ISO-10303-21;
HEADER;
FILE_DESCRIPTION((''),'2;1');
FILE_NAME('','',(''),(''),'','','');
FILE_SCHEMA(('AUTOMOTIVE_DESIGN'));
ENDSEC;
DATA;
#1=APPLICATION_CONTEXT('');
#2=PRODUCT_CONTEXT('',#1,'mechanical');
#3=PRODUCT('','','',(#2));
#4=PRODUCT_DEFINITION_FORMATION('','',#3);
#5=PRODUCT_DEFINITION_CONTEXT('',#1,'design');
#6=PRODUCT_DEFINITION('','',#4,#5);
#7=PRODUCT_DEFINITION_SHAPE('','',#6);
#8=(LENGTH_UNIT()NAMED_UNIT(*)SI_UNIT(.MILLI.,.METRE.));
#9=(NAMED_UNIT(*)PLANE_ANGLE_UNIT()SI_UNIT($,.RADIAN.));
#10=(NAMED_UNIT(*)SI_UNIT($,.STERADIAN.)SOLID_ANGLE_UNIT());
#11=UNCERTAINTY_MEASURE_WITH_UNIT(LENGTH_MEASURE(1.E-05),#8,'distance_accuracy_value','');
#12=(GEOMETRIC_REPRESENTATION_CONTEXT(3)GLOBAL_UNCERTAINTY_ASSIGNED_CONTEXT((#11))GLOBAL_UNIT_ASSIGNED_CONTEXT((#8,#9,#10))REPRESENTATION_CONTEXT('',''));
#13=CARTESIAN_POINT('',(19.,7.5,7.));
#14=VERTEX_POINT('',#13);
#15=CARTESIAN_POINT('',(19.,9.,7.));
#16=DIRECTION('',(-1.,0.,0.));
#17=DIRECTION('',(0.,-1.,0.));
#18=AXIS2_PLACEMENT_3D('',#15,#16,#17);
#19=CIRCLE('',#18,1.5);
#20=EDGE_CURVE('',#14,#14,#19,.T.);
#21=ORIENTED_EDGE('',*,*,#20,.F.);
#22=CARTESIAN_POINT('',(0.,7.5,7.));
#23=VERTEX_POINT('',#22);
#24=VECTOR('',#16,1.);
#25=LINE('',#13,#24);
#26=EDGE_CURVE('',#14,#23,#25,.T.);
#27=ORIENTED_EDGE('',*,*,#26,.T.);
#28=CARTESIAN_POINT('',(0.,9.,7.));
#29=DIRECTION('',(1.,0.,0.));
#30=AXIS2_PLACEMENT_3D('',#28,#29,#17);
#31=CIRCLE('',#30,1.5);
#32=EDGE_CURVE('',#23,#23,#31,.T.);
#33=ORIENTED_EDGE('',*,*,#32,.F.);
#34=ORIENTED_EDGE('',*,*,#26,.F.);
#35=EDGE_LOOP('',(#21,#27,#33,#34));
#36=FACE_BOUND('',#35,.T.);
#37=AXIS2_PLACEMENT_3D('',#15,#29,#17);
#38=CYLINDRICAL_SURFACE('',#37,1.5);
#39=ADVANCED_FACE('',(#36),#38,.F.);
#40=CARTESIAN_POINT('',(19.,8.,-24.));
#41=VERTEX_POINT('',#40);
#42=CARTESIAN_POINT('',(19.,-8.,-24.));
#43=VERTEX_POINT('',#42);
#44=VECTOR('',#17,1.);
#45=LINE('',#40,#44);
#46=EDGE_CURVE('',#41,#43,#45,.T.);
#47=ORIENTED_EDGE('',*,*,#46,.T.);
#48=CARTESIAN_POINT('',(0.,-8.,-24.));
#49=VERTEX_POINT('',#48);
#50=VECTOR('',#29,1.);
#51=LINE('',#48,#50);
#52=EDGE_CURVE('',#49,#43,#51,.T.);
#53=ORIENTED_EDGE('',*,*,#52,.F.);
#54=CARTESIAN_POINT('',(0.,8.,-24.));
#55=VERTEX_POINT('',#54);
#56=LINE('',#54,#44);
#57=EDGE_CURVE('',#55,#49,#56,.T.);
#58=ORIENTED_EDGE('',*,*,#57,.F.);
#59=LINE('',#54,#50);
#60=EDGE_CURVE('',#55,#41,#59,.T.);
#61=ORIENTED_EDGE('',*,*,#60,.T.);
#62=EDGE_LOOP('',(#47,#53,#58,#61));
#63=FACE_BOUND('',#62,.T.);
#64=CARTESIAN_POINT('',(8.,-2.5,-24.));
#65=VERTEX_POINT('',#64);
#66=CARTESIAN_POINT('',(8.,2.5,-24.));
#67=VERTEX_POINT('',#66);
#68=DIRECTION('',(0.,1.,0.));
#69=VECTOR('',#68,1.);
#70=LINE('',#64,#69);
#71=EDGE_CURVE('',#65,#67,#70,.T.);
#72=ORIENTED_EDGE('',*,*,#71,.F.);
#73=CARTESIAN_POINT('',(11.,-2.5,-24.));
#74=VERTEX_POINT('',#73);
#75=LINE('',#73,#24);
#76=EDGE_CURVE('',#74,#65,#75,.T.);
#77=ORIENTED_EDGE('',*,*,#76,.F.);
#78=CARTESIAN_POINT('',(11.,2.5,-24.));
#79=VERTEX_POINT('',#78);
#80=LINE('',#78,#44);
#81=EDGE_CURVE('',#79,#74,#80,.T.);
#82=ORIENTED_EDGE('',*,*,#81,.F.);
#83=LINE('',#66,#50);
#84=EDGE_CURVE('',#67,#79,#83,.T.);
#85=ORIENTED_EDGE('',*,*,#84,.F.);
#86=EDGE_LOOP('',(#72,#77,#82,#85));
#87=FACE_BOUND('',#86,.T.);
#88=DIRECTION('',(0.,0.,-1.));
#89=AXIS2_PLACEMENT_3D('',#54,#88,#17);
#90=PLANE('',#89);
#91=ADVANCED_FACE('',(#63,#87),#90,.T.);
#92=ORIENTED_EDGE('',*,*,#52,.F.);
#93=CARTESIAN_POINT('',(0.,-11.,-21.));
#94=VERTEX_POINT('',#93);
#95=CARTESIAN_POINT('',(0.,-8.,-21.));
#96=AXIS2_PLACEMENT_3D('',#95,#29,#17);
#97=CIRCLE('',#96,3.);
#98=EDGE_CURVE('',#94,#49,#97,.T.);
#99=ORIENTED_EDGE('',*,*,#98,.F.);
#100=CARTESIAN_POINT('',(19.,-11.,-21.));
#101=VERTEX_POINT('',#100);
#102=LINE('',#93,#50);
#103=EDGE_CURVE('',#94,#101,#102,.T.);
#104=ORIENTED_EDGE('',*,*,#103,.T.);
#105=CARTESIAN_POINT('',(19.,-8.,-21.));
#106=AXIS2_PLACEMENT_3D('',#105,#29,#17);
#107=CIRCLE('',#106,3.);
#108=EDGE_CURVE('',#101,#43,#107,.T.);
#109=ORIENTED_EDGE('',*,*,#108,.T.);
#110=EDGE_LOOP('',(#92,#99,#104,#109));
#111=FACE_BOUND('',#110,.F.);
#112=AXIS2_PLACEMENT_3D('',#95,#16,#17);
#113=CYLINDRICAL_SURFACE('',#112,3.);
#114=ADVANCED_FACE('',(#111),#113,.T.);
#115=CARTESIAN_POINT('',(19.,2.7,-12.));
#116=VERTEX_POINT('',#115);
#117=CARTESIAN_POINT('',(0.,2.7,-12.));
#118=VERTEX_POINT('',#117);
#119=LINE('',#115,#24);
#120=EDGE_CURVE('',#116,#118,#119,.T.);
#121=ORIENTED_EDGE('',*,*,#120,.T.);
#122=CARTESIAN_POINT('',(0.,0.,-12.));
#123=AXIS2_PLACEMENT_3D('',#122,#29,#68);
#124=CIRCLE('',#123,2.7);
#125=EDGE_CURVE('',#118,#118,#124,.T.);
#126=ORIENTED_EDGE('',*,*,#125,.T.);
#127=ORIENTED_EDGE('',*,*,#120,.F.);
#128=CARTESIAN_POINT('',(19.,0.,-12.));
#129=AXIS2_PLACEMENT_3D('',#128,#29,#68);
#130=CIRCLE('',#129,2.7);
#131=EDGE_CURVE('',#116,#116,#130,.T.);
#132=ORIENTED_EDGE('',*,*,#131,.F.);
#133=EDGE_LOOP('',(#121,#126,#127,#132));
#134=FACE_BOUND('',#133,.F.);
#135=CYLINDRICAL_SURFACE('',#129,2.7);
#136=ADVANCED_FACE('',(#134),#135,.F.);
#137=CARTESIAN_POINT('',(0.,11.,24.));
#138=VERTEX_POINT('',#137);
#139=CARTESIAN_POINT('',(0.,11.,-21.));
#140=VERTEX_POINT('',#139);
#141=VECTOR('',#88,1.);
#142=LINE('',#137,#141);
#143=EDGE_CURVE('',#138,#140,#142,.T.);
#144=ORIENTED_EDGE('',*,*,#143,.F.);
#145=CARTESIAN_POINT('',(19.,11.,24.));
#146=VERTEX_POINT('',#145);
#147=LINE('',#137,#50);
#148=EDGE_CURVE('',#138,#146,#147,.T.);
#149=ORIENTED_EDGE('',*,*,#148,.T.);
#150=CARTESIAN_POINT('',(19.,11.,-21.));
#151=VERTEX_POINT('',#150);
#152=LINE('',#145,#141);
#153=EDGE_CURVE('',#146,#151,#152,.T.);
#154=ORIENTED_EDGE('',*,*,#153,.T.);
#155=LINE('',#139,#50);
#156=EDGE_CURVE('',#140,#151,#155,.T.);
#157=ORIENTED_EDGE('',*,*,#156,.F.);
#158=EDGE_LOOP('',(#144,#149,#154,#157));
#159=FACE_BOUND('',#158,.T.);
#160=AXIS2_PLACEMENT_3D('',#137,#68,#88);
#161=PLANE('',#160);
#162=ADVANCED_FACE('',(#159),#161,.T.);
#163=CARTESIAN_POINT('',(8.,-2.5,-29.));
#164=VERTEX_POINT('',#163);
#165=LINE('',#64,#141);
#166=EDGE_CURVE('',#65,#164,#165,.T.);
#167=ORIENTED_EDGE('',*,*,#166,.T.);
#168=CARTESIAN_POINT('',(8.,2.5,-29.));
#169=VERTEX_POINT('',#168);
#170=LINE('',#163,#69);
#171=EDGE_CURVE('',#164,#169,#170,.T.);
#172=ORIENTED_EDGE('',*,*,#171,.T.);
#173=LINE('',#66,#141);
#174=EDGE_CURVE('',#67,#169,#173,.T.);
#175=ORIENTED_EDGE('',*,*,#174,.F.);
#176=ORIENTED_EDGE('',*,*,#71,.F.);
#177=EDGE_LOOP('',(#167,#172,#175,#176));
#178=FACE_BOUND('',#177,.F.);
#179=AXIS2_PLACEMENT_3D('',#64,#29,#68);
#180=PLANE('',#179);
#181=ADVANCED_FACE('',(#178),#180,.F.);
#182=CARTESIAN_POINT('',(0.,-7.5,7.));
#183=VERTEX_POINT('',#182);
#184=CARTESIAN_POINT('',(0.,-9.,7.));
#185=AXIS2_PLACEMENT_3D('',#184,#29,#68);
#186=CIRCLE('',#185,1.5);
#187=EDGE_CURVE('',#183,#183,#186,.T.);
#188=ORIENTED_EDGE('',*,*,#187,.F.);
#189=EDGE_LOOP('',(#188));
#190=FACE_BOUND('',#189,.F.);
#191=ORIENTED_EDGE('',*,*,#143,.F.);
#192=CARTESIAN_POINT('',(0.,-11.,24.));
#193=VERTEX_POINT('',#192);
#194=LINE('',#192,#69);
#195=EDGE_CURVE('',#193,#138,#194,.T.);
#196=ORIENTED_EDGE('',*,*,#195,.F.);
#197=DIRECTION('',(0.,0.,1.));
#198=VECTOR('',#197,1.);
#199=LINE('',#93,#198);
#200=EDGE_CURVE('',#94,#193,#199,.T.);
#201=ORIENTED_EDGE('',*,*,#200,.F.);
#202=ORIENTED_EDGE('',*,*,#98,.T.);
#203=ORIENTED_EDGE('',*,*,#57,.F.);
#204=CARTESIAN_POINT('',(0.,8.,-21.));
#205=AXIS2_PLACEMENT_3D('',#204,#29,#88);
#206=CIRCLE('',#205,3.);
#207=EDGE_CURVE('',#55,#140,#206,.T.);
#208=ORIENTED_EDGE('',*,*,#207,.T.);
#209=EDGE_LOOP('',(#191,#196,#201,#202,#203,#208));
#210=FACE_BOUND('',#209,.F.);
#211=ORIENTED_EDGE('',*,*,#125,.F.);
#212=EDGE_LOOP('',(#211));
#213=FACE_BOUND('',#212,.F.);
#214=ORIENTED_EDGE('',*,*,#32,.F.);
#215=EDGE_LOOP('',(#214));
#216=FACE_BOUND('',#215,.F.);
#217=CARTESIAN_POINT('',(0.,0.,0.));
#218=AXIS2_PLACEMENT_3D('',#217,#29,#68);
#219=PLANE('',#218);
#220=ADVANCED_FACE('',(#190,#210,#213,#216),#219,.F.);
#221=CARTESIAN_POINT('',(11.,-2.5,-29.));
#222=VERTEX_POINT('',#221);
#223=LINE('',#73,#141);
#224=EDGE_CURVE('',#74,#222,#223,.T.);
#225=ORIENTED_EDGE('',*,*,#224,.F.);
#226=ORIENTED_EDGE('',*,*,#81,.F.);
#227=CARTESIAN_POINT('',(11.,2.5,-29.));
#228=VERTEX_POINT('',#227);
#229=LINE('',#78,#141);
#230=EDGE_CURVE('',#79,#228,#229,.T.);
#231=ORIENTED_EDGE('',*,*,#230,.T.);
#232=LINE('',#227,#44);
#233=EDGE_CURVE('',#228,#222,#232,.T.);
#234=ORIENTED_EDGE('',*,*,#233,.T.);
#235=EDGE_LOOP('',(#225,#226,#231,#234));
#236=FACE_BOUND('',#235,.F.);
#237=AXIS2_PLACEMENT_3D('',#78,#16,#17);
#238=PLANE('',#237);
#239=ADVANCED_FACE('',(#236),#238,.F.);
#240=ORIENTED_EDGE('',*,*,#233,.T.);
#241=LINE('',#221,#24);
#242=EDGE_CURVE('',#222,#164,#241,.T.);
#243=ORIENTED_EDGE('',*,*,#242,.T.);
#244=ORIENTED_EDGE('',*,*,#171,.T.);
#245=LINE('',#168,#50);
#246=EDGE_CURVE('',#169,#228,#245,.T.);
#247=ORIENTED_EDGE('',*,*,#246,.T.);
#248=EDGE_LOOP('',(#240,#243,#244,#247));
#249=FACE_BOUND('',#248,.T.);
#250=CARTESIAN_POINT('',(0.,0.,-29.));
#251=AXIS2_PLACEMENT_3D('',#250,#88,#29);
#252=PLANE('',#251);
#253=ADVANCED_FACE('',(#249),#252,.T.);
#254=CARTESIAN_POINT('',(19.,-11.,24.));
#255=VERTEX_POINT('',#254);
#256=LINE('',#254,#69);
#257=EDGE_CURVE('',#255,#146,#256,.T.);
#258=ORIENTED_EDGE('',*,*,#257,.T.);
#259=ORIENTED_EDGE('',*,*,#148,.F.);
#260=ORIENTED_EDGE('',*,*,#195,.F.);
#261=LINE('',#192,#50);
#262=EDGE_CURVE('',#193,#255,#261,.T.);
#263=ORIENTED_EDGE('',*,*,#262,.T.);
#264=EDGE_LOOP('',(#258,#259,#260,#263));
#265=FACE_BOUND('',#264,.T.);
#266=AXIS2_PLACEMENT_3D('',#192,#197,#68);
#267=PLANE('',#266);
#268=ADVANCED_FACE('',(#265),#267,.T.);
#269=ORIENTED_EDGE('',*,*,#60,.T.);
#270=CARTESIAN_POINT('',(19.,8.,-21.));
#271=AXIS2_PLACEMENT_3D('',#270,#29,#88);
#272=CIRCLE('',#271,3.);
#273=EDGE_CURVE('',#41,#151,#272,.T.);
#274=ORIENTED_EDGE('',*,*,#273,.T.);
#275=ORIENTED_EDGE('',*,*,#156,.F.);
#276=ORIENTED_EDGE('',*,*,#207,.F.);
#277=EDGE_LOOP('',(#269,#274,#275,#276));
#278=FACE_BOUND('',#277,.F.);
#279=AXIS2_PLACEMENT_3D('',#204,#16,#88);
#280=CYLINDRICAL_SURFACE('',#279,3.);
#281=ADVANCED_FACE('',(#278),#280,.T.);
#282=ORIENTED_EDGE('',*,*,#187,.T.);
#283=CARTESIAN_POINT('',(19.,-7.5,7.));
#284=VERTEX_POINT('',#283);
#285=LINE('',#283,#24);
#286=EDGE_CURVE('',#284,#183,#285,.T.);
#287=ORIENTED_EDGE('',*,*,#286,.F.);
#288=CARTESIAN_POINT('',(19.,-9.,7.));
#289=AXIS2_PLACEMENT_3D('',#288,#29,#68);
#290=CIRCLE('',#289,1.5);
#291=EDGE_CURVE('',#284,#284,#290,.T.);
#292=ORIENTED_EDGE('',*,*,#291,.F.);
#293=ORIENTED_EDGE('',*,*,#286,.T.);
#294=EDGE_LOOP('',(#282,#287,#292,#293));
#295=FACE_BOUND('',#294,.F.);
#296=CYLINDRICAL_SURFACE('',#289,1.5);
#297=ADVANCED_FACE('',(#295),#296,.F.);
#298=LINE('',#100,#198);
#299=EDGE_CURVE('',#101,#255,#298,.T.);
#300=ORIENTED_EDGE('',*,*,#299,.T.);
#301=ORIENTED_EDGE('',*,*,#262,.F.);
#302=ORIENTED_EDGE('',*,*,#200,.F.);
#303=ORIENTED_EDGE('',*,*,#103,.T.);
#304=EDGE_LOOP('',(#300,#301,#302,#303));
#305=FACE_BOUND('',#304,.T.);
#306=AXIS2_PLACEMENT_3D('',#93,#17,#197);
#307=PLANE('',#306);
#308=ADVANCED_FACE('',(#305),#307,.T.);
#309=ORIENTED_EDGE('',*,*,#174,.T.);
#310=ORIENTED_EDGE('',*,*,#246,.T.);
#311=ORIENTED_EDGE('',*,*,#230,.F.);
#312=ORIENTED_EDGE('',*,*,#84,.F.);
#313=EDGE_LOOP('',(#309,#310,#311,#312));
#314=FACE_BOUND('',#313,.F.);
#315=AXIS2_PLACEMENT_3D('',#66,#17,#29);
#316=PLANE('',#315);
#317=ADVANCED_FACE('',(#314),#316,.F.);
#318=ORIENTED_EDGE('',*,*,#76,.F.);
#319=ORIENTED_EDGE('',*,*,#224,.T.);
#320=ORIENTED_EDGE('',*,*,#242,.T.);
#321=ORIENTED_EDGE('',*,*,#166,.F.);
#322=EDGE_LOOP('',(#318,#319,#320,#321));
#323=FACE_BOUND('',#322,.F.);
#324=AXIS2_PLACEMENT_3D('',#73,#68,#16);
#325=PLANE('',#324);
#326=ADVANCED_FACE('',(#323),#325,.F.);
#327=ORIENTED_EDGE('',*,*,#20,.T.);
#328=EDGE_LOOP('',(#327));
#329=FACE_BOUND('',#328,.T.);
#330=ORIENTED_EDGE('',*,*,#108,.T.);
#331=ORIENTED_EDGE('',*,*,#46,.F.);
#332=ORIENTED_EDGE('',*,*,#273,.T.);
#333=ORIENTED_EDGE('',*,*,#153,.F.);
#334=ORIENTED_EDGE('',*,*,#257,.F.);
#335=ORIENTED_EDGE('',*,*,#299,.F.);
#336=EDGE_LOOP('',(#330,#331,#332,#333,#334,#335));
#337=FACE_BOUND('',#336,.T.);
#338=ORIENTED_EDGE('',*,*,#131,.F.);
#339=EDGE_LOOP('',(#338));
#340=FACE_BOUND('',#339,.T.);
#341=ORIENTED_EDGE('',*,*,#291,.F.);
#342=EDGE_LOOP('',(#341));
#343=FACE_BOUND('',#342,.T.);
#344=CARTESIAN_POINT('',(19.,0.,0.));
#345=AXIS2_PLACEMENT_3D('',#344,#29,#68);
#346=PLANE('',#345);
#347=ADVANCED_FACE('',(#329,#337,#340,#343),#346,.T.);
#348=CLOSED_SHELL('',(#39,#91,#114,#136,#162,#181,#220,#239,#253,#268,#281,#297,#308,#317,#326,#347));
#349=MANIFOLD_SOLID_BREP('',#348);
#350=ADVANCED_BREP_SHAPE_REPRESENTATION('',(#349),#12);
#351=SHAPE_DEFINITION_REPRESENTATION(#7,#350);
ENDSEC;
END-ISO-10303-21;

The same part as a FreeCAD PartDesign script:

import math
import FreeCAD as App
import Part
import Sketcher


def add_polygon(sketch, points):
    """Adds a closed chain of lines whose ends are joined by coincident constraints."""
    first, n = sketch.GeometryCount, len(points)
    for a, b in zip(points, points[1:] + points[:1]):
        sketch.addGeometry(Part.LineSegment(App.Vector(*a, 0), App.Vector(*b, 0)), False)
    for i in range(n):
        sketch.addConstraint(Sketcher.Constraint("Coincident", first + i, 2, first + (i + 1) % n, 1))

doc = App.newDocument("Part")
body = doc.addObject("PartDesign::Body", "Body")

# Sketch on YZ plane
sketch1 = doc.addObject("Sketcher::SketchObject", "Sketch")
body.addObject(sketch1)
sketch1.AttachmentSupport = (doc.YZ_Plane, [""])
sketch1.MapMode = "FlatFace"
sketch1.addGeometry([
    Part.LineSegment(App.Vector(11, 24, 0), App.Vector(-11, 24, 0)),  # 0
    Part.LineSegment(App.Vector(-11, 24, 0), App.Vector(-11, -21, 0)),  # 1
    Part.ArcOfCircle(Part.Circle(App.Vector(-8, -21, 0), App.Vector(0, 0, 1), 3), math.radians(180), math.radians(270)),  # 2
    Part.LineSegment(App.Vector(-8, -24, 0), App.Vector(8, -24, 0)),  # 3
    Part.ArcOfCircle(Part.Circle(App.Vector(8, -21, 0), App.Vector(0, 0, 1), 3), math.radians(-90), math.radians(0)),  # 4
    Part.LineSegment(App.Vector(11, -21, 0), App.Vector(11, 24, 0)),  # 5
], False)
sketch1.addConstraint([
    Sketcher.Constraint("Coincident", 0, 2, 1, 1),
    Sketcher.Constraint("Tangent", 1, 2, 2, 1),
    Sketcher.Constraint("Tangent", 2, 2, 3, 1),
    Sketcher.Constraint("Tangent", 3, 2, 4, 1),
    Sketcher.Constraint("Tangent", 4, 2, 5, 1),
    Sketcher.Constraint("Coincident", 5, 2, 0, 1),
    Sketcher.Constraint("Horizontal", 0),
    Sketcher.Constraint("Vertical", 1),
    Sketcher.Constraint("Horizontal", 3),
    Sketcher.Constraint("Vertical", 5),
    Sketcher.Constraint("Equal", 2, 4),
    Sketcher.Constraint("Radius", 2, 3.0),
    Sketcher.Constraint("DistanceX", 0, 2, 0, 1, 22.0),
    Sketcher.Constraint("DistanceY", 2, 2, 0, 2, 48.0),
    Sketcher.Constraint("DistanceX", 2, 3, -1, 1, 8.0),
    Sketcher.Constraint("DistanceY", 2, 3, -1, 1, 21.0),
])
pad1 = doc.addObject("PartDesign::Pad", "Pad")
body.addObject(pad1)
pad1.Profile = sketch1
pad1.Length = 19

# Sketch on XY plane
sketch2 = doc.addObject("Sketcher::SketchObject", "Sketch001")
body.addObject(sketch2)
sketch2.AttachmentSupport = (doc.XY_Plane, [""])
sketch2.MapMode = "FlatFace"
sketch2.AttachmentOffset = App.Placement(App.Vector(0, 0, -24), App.Rotation())
add_polygon(sketch2, [(11, 2.5), (11, -2.5), (8, -2.5), (8, 2.5)])  # lines 0-3
sketch2.addConstraint([
    Sketcher.Constraint("Vertical", 0),
    Sketcher.Constraint("Horizontal", 1),
    Sketcher.Constraint("Vertical", 2),
    Sketcher.Constraint("Horizontal", 3),
    Sketcher.Constraint("DistanceX", 1, 2, 1, 1, 3.0),
    Sketcher.Constraint("DistanceY", 0, 2, 0, 1, 5.0),
    Sketcher.Constraint("DistanceX", -1, 1, 0, 2, 11.0),
    Sketcher.Constraint("DistanceY", 0, 2, -1, 1, 2.5),
])
pad2 = doc.addObject("PartDesign::Pad", "Pad001")
body.addObject(pad2)
pad2.Profile = sketch2
pad2.Length = 5
pad2.Reversed = True

# Sketch on YZ plane
sketch3 = doc.addObject("Sketcher::SketchObject", "Sketch002")
body.addObject(sketch3)
sketch3.AttachmentSupport = (doc.YZ_Plane, [""])
sketch3.MapMode = "FlatFace"
sketch3.AttachmentOffset = App.Placement(App.Vector(0, 0, 11), App.Rotation())
sketch3.addGeometry(Part.Circle(App.Vector(0, -26.5, 0), App.Vector(0, 0, 1), 1.5), False)
sketch3.addConstraint([
    Sketcher.Constraint("PointOnObject", 0, 3, -2),
    Sketcher.Constraint("Diameter", 0, 3.0),
    Sketcher.Constraint("DistanceY", 0, 3, -1, 1, 26.5),
])
pocket1 = doc.addObject("PartDesign::Pocket", "Pocket")
body.addObject(pocket1)
pocket1.Profile = sketch3
pocket1.Type = "ThroughAll"
pocket1.Reversed = True

# Sketch on YZ plane
sketch4 = doc.addObject("Sketcher::SketchObject", "Sketch003")
body.addObject(sketch4)
sketch4.AttachmentSupport = (doc.YZ_Plane, [""])
sketch4.MapMode = "FlatFace"
sketch4.AttachmentOffset = App.Placement(App.Vector(0, 0, 19), App.Rotation())
sketch4.addGeometry(Part.Circle(App.Vector(0, -12, 0), App.Vector(0, 0, 1), 2.7), False)
sketch4.addConstraint([
    Sketcher.Constraint("PointOnObject", 0, 3, -2),
    Sketcher.Constraint("Diameter", 0, 5.4),
    Sketcher.Constraint("DistanceY", 0, 3, -1, 1, 12.0),
])
pocket2 = doc.addObject("PartDesign::Pocket", "Pocket001")
body.addObject(pocket2)
pocket2.Profile = sketch4
pocket2.Type = "ThroughAll"

# Sketch on YZ plane
sketch5 = doc.addObject("Sketcher::SketchObject", "Sketch004")
body.addObject(sketch5)
sketch5.AttachmentSupport = (doc.YZ_Plane, [""])
sketch5.MapMode = "FlatFace"
sketch5.AttachmentOffset = App.Placement(App.Vector(0, 0, 19), App.Rotation())
sketch5.addGeometry(Part.Circle(App.Vector(-9, 7, 0), App.Vector(0, 0, 1), 1.5), False)
sketch5.addConstraint([
    Sketcher.Constraint("Diameter", 0, 3.0),
    Sketcher.Constraint("DistanceX", 0, 3, -1, 1, 9.0),
    Sketcher.Constraint("DistanceY", -1, 1, 0, 3, 7.0),
])
pocket3 = doc.addObject("PartDesign::Pocket", "Pocket002")
body.addObject(pocket3)
pocket3.Profile = sketch5
pocket3.Type = "ThroughAll"
doc.recompute()

mirrored = doc.addObject("PartDesign::Mirrored", "Mirrored")
body.addObject(mirrored)
mirrored.Originals = [pocket3]
mirrored.MirrorPlane = (doc.XZ_Plane, [""])
body.Tip = mirrored

doc.recompute()
